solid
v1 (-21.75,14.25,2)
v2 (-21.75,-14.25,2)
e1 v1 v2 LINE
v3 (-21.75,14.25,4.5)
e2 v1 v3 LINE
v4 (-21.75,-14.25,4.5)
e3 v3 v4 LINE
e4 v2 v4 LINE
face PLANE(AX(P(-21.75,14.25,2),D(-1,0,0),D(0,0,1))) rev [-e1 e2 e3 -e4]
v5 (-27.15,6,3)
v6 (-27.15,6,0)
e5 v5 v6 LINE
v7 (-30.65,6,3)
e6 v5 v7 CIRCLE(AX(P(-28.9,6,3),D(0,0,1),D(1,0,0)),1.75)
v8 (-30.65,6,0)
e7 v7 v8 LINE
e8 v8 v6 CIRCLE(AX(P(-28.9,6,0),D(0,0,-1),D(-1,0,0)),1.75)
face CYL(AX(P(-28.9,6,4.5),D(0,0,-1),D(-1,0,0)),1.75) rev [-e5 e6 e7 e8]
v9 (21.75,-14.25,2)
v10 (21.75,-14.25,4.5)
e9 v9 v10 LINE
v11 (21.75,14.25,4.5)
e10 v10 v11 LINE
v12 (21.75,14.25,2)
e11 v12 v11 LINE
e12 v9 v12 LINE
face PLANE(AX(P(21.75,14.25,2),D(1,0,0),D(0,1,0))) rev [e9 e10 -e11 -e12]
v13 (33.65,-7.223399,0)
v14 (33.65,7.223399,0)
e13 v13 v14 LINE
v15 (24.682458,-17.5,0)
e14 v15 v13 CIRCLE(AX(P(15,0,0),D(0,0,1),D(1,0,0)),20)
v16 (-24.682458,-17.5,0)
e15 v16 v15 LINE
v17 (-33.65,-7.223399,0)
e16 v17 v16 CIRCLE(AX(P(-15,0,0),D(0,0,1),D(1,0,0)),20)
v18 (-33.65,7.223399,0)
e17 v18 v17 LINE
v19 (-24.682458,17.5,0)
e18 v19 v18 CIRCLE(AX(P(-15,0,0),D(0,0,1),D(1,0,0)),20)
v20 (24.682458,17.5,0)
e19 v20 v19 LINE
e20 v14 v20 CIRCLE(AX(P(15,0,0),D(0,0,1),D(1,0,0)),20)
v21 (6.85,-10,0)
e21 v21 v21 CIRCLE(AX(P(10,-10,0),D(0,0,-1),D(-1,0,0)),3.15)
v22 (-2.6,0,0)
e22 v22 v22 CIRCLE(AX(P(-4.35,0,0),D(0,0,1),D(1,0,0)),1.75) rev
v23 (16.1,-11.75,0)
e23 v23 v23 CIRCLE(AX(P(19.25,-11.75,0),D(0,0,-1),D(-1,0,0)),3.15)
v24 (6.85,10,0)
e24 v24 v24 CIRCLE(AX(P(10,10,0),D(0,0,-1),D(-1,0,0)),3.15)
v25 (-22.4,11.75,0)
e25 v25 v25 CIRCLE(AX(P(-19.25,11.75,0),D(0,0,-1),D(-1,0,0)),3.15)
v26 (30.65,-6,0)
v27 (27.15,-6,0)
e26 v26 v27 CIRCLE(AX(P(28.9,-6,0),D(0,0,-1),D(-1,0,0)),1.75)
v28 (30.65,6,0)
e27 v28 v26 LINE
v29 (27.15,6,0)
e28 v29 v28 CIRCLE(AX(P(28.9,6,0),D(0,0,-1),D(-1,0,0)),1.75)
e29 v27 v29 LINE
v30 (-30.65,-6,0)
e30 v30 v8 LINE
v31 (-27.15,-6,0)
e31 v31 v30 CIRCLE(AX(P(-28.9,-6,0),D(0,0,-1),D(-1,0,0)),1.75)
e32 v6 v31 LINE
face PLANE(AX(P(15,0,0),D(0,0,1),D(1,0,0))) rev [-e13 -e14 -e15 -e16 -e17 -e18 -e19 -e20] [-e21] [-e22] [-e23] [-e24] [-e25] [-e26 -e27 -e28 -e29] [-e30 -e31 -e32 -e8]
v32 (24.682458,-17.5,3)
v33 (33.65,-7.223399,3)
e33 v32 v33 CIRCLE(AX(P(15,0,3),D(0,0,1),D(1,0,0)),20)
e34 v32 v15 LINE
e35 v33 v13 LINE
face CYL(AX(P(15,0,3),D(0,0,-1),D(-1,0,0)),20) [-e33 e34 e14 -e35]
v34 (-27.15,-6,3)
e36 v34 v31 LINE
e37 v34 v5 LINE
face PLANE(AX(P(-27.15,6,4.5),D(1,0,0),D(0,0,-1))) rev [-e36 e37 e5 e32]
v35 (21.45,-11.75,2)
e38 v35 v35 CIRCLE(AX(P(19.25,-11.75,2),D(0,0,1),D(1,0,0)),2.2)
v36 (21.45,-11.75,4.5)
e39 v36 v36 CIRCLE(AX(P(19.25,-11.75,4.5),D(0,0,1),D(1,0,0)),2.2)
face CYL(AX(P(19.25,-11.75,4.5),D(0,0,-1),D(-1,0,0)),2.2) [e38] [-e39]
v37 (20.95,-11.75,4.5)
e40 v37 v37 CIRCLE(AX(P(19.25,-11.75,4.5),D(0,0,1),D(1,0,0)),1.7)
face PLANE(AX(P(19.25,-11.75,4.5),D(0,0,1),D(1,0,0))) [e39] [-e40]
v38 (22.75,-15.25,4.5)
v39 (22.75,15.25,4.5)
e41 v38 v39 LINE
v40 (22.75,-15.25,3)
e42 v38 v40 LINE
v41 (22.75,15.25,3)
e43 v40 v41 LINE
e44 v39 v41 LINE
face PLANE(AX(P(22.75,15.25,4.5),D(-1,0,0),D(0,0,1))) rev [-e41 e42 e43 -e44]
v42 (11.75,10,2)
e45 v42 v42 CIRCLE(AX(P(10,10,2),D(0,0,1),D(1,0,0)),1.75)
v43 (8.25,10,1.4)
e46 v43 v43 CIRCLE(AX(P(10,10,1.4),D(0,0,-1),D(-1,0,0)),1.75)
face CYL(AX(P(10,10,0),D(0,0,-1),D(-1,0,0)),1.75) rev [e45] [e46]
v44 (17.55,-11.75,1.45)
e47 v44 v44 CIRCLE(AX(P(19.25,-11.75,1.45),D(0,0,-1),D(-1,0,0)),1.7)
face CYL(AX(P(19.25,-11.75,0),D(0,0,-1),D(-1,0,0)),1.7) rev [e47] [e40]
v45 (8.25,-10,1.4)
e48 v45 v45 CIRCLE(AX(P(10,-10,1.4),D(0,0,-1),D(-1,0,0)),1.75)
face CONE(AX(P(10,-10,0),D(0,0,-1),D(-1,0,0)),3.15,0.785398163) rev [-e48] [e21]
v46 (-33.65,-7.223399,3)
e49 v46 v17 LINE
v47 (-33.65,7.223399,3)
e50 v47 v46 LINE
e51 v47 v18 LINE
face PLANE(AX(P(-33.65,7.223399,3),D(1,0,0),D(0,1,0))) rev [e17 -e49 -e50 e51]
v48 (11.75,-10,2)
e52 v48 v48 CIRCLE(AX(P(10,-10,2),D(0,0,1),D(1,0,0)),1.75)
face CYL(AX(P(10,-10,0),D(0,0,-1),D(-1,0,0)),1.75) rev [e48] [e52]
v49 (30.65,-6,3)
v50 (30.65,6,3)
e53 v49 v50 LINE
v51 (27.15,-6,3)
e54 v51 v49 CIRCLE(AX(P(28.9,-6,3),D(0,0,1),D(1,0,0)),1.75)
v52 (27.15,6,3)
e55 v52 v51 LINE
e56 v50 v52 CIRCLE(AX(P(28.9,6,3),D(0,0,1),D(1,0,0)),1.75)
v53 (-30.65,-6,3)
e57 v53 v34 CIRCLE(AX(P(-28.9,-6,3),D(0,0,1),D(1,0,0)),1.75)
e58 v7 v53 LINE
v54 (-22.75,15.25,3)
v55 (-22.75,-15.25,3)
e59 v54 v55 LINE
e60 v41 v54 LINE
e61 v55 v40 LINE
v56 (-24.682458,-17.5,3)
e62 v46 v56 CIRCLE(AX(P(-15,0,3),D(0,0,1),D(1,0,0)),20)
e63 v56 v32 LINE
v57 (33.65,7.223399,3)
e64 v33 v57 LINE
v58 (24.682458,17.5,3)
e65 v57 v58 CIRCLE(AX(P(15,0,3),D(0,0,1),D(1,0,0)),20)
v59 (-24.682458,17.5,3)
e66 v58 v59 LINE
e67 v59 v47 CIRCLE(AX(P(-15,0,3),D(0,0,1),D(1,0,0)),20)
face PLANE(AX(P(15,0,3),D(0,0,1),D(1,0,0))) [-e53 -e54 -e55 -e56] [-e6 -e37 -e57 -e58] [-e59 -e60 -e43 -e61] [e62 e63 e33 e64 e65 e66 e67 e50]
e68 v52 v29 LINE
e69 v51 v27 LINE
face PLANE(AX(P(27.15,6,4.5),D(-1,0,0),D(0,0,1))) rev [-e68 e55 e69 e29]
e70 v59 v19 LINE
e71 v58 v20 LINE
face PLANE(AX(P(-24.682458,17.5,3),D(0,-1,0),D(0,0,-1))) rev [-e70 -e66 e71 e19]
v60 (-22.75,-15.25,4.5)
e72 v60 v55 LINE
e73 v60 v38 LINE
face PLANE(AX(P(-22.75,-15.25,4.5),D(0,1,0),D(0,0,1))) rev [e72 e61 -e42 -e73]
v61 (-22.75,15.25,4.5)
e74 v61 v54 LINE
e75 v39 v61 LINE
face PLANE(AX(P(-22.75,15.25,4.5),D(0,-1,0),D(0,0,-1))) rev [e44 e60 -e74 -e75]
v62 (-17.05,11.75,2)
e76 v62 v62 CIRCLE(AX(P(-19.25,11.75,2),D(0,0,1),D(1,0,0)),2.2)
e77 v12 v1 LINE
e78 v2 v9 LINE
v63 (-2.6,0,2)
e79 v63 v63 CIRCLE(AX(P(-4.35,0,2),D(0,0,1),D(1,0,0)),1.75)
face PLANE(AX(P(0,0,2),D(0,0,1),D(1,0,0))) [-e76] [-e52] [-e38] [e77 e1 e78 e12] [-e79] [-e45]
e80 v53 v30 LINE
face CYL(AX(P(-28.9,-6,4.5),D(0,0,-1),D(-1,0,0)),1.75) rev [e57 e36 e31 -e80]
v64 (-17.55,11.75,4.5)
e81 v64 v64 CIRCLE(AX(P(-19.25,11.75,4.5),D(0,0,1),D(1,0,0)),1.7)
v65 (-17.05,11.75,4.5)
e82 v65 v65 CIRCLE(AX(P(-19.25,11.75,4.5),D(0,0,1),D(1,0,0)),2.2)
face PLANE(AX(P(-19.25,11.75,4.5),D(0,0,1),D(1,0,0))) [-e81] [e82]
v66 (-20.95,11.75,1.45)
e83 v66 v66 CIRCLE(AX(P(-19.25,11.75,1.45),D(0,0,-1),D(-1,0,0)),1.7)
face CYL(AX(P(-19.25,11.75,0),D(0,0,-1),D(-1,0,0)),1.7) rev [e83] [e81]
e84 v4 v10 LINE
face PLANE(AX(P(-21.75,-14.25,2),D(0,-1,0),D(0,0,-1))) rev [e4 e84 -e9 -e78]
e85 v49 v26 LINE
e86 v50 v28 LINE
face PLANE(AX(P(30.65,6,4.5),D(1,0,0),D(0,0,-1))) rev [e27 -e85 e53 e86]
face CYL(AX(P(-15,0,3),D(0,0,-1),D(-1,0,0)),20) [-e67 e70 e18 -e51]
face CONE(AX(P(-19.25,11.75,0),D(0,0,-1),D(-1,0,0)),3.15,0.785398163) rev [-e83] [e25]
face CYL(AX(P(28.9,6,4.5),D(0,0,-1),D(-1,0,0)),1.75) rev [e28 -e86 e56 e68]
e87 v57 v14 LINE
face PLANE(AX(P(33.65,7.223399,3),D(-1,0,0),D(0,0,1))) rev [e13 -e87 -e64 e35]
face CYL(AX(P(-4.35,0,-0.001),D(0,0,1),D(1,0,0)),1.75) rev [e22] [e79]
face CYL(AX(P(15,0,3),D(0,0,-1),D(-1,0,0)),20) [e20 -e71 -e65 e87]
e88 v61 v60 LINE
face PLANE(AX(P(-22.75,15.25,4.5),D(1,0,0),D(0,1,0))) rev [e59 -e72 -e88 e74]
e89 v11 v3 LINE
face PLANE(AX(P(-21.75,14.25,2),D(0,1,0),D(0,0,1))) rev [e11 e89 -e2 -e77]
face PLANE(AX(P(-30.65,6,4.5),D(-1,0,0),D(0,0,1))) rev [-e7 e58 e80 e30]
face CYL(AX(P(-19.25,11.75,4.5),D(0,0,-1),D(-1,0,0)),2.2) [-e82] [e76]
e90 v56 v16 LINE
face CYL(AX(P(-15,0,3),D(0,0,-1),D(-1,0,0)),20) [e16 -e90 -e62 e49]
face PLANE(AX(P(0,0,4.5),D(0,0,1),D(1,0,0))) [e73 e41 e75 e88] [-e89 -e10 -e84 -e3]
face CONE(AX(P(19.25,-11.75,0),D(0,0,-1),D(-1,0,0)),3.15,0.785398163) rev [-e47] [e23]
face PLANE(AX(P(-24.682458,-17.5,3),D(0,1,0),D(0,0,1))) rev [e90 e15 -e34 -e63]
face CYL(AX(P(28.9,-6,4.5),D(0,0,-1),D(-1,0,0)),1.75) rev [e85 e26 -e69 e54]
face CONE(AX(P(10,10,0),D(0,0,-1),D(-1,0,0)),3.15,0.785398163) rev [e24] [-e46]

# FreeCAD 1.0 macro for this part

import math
import FreeCAD as App
import Part
import Sketcher
from FreeCAD import Vector
Q = App.Units.Quantity

doc = App.newDocument("Part")
body = doc.addObject("PartDesign::Body", "Body")

# Sketch on XY plane
sketch1 = body.newObject("Sketcher::SketchObject", "Sketch")
sketch1.AttachmentSupport = (doc.getObject("XY_Plane"), [""])
sketch1.MapMode = "FlatFace"
sketch1.addGeometry([
    Part.LineSegment(Vector(25, 18, 0), Vector(-25, 18, 0)),  # 0
    Part.ArcOfCircle(Part.Circle(Vector(-15, 0, 0), Vector(0, 0, 1), 20), math.radians(119), math.radians(159)),  # 1
    Part.LineSegment(Vector(-34, 7, 0), Vector(-34, -7, 0)),  # 2
    Part.ArcOfCircle(Part.Circle(Vector(-15, 0, 0), Vector(0, 0, 1), 20), math.radians(-159), math.radians(-119)),  # 3
    Part.LineSegment(Vector(-25, -18, 0), Vector(25, -18, 0)),  # 4
    Part.ArcOfCircle(Part.Circle(Vector(15, 0, 0), Vector(0, 0, 1), 20), math.radians(-61), math.radians(-21)),  # 5
    Part.LineSegment(Vector(34, -7, 0), Vector(34, 7, 0)),  # 6
    Part.ArcOfCircle(Part.Circle(Vector(15, 0, 0), Vector(0, 0, 1), 20), math.radians(21), math.radians(61)),  # 7
], False)
sketch1.addConstraint([
    Sketcher.Constraint("Coincident", 0, 2, 1, 1),
    Sketcher.Constraint("Coincident", 1, 2, 2, 1),
    Sketcher.Constraint("Coincident", 2, 2, 3, 1),
    Sketcher.Constraint("Coincident", 3, 2, 4, 1),
    Sketcher.Constraint("Coincident", 4, 2, 5, 1),
    Sketcher.Constraint("Coincident", 5, 2, 6, 1),
    Sketcher.Constraint("Coincident", 6, 2, 7, 1),
    Sketcher.Constraint("Coincident", 7, 2, 0, 1),
    Sketcher.Constraint("Horizontal", 0),
    Sketcher.Constraint("Vertical", 2),
    Sketcher.Constraint("Horizontal", 4),
    Sketcher.Constraint("Vertical", 6),
    Sketcher.Constraint("Coincident", 3, 3, 1, 3),
    Sketcher.Constraint("Coincident", 7, 3, 5, 3),
    Sketcher.Constraint("Equal", 1, 3),
    Sketcher.Constraint("Equal", 3, 5),
    Sketcher.Constraint("Equal", 5, 7),
    Sketcher.Constraint("Symmetric", 1, 3, 5, 3, -1, 1),
    Sketcher.Constraint("Symmetric", 2, 2, 5, 2, -2),
    Sketcher.Constraint("Vertical", 0, 2, 3, 2),
    Sketcher.Constraint("Radius", 1, Q("20 mm")),
    Sketcher.Constraint("DistanceX", 1, 3, -1, 1, Q("15 mm")),
    Sketcher.Constraint("DistanceY", 3, 2, 0, 2, Q("35 mm")),
    Sketcher.Constraint("DistanceX", 1, 2, -1, 1, Q("33.65 mm")),
])
pad1 = body.newObject("PartDesign::Pad", "Pad")
pad1.Profile = sketch1
pad1.Length = 3

# Sketch on XY plane
sketch2 = body.newObject("Sketcher::SketchObject", "Sketch001")
sketch2.AttachmentSupport = (doc.getObject("XY_Plane"), [""])
sketch2.MapMode = "FlatFace"
sketch2.AttachmentOffset = App.Placement(Vector(0, 0, 3), App.Rotation())
sketch2.addGeometry([
    Part.LineSegment(Vector(-23, 15, 0), Vector(-23, -15, 0)),
    Part.LineSegment(Vector(-23, -15, 0), Vector(23, -15, 0)),
    Part.LineSegment(Vector(23, -15, 0), Vector(23, 15, 0)),
    Part.LineSegment(Vector(23, 15, 0), Vector(-23, 15, 0)),
], False)
sketch2.addConstraint([
    Sketcher.Constraint("Coincident", 0, 2, 1, 1),
    Sketcher.Constraint("Coincident", 1, 2, 2, 1),
    Sketcher.Constraint("Coincident", 2, 2, 3, 1),
    Sketcher.Constraint("Coincident", 3, 2, 0, 1),
    Sketcher.Constraint("Vertical", 0),
    Sketcher.Constraint("Horizontal", 1),
    Sketcher.Constraint("Vertical", 2),
    Sketcher.Constraint("Horizontal", 3),
    Sketcher.Constraint("Symmetric", 0, 2, 2, 2, -1, 1),
    Sketcher.Constraint("DistanceX", 1, 1, 1, 2, Q("45.5 mm")),
    Sketcher.Constraint("DistanceY", 0, 2, 0, 1, Q("30.5 mm")),
])
pad2 = body.newObject("PartDesign::Pad", "Pad001")
pad2.Profile = sketch2
pad2.Length = 1.5

# Sketch on XY plane
sketch3 = body.newObject("Sketcher::SketchObject", "Sketch002")
sketch3.AttachmentSupport = (doc.getObject("XY_Plane"), [""])
sketch3.MapMode = "FlatFace"
sketch3.AttachmentOffset = App.Placement(Vector(0, 0, 4.5), App.Rotation())
sketch3.addGeometry([
    Part.LineSegment(Vector(-22, 14, 0), Vector(-22, -14, 0)),
    Part.LineSegment(Vector(-22, -14, 0), Vector(22, -14, 0)),
    Part.LineSegment(Vector(22, -14, 0), Vector(22, 14, 0)),
    Part.LineSegment(Vector(22, 14, 0), Vector(-22, 14, 0)),
], False)
sketch3.addConstraint([
    Sketcher.Constraint("Coincident", 0, 2, 1, 1),
    Sketcher.Constraint("Coincident", 1, 2, 2, 1),
    Sketcher.Constraint("Coincident", 2, 2, 3, 1),
    Sketcher.Constraint("Coincident", 3, 2, 0, 1),
    Sketcher.Constraint("Vertical", 0),
    Sketcher.Constraint("Horizontal", 1),
    Sketcher.Constraint("Vertical", 2),
    Sketcher.Constraint("Horizontal", 3),
    Sketcher.Constraint("Symmetric", 0, 2, 2, 2, -1, 1),
    Sketcher.Constraint("DistanceX", 1, 1, 1, 2, Q("43.5 mm")),
    Sketcher.Constraint("DistanceY", 0, 2, 0, 1, Q("28.5 mm")),
])
pocket1 = body.newObject("PartDesign::Pocket", "Pocket")
pocket1.Profile = sketch3
pocket1.Length = 2.5

# Sketch on XY plane
sketch4 = body.newObject("Sketcher::SketchObject", "Sketch003")
sketch4.AttachmentSupport = (doc.getObject("XY_Plane"), [""])
sketch4.MapMode = "FlatFace"
sketch4.addGeometry([
    Part.Circle(Vector(19.2, -11.8, 0), Vector(0, 0, 1), 1.7),
    Part.Circle(Vector(-19.2, 11.8, 0), Vector(0, 0, 1), 1.7),
], False)
sketch4.addConstraint([
    Sketcher.Constraint("Equal", 0, 1),
    Sketcher.Constraint("Symmetric", 0, 3, 1, 3, -1, 1),
    Sketcher.Constraint("Diameter", 0, Q("3.4 mm")),
    Sketcher.Constraint("DistanceX", 1, 3, 0, 3, Q("38.5 mm")),
    Sketcher.Constraint("DistanceY", 0, 3, 1, 3, Q("23.5 mm")),
])
doc.recompute()
hole = body.newObject("PartDesign::Hole", "Hole")
hole.Profile = sketch4
hole.ThreadType = "None"
hole.Diameter = 3.4
hole.DepthType = "ThroughAll"
hole.HoleCutType = "Countersink"
hole.HoleCutDiameter = 6.3
hole.HoleCutCountersinkAngle = 90
hole.Reversed = True

# Sketch on XY plane
sketch5 = body.newObject("Sketcher::SketchObject", "Sketch004")
sketch5.AttachmentSupport = (doc.getObject("XY_Plane"), [""])
sketch5.MapMode = "FlatFace"
sketch5.AttachmentOffset = App.Placement(Vector(0, 0, 4.5), App.Rotation())
sketch5.addGeometry([
    Part.Circle(Vector(-19.2, 11.8, 0), Vector(0, 0, 1), 2.2),
    Part.Circle(Vector(-19.2, 11.8, 0), Vector(0, 0, 1), 1.7),
    Part.Circle(Vector(19.2, -11.8, 0), Vector(0, 0, 1), 2.2),
    Part.Circle(Vector(19.2, -11.8, 0), Vector(0, 0, 1), 1.7),
], False)
sketch5.addConstraint([
    Sketcher.Constraint("Coincident", 1, 3, 0, 3),
    Sketcher.Constraint("Coincident", 3, 3, 2, 3),
    Sketcher.Constraint("Equal", 0, 2),
    Sketcher.Constraint("Equal", 1, 3),
    Sketcher.Constraint("Symmetric", 0, 3, 2, 3, -1, 1),
    Sketcher.Constraint("Diameter", 0, Q("4.4 mm")),
    Sketcher.Constraint("Diameter", 1, Q("3.4 mm")),
    Sketcher.Constraint("DistanceX", 0, 3, 2, 3, Q("38.5 mm")),
    Sketcher.Constraint("DistanceY", 2, 3, 0, 3, Q("23.5 mm")),
])
pad3 = body.newObject("PartDesign::Pad", "Pad002")
pad3.Profile = sketch5
pad3.Length = 2.5
pad3.Reversed = True

# Sketch on XY plane
sketch6 = body.newObject("Sketcher::SketchObject", "Sketch005")
sketch6.AttachmentSupport = (doc.getObject("XY_Plane"), [""])
sketch6.MapMode = "FlatFace"
sketch6.addGeometry([
    Part.LineSegment(Vector(27.1, -6, 0), Vector(27.1, 6, 0)),  # 0
    Part.ArcOfCircle(Part.Circle(Vector(28.9, 6, 0), Vector(0, 0, 1), 1.8), math.radians(0), math.radians(180)),  # 1
    Part.LineSegment(Vector(30.6, 6, 0), Vector(30.6, -6, 0)),  # 2
    Part.ArcOfCircle(Part.Circle(Vector(28.9, -6, 0), Vector(0, 0, 1), 1.8), math.radians(180), math.radians(360)),  # 3
    Part.LineSegment(Vector(-27.1, 6, 0), Vector(-27.1, -6, 0)),  # 4
    Part.ArcOfCircle(Part.Circle(Vector(-28.9, -6, 0), Vector(0, 0, 1), 1.8), math.radians(180), math.radians(360)),  # 5
    Part.LineSegment(Vector(-30.6, -6, 0), Vector(-30.6, 6, 0)),  # 6
    Part.ArcOfCircle(Part.Circle(Vector(-28.9, 6, 0), Vector(0, 0, 1), 1.8), math.radians(0), math.radians(180)),  # 7
], False)
sketch6.addConstraint([
    Sketcher.Constraint("Tangent", 0, 2, 1, 2),
    Sketcher.Constraint("Tangent", 1, 1, 2, 1),
    Sketcher.Constraint("Tangent", 2, 2, 3, 2),
    Sketcher.Constraint("Tangent", 3, 1, 0, 1),
    Sketcher.Constraint("Tangent", 4, 2, 5, 2),
    Sketcher.Constraint("Tangent", 5, 1, 6, 1),
    Sketcher.Constraint("Tangent", 6, 2, 7, 2),
    Sketcher.Constraint("Tangent", 7, 1, 4, 1),
    Sketcher.Constraint("Vertical", 0),
    Sketcher.Constraint("Vertical", 2),
    Sketcher.Constraint("Vertical", 4),
    Sketcher.Constraint("Vertical", 6),
    Sketcher.Constraint("Equal", 3, 5),
    Sketcher.Constraint("Symmetric", 1, 3, 5, 3, -1, 1),
    Sketcher.Constraint("Horizontal", 3, 3, 5, 3),
    Sketcher.Constraint("Horizontal", 1, 3, 7, 3),
    Sketcher.Constraint("DistanceY", 0, 1, 0, 2, Q("12 mm")),
    Sketcher.Constraint("Radius", 1, Q("1.75 mm")),
    Sketcher.Constraint("DistanceX", -1, 1, 1, 3, Q("28.9 mm")),
])
pocket2 = body.newObject("PartDesign::Pocket", "Pocket001")
pocket2.Profile = sketch6
pocket2.Type = "ThroughAll"
pocket2.Reversed = True

# Sketch on XY plane
sketch7 = body.newObject("Sketcher::SketchObject", "Sketch006")
sketch7.AttachmentSupport = (doc.getObject("XY_Plane"), [""])
sketch7.MapMode = "FlatFace"
sketch7.addGeometry([
    Part.Circle(Vector(10, -10, 0), Vector(0, 0, 1), 1.8),
    Part.Circle(Vector(10, 10, 0), Vector(0, 0, 1), 1.8),
], False)
sketch7.addConstraint([
    Sketcher.Constraint("Equal", 0, 1),
    Sketcher.Constraint("Symmetric", 0, 3, 1, 3, -1),
    Sketcher.Constraint("Diameter", 0, Q("3.5 mm")),
    Sketcher.Constraint("DistanceX", -1, 1, 0, 3, Q("10 mm")),
    Sketcher.Constraint("DistanceY", 0, 3, -1, 1, Q("10 mm")),
])
doc.recompute()
hole2 = body.newObject("PartDesign::Hole", "Hole001")
hole2.Profile = sketch7
hole2.ThreadType = "None"
hole2.Diameter = 3.5
hole2.DepthType = "ThroughAll"
hole2.HoleCutType = "Countersink"
hole2.HoleCutDiameter = 6.3
hole2.HoleCutCountersinkAngle = 90
hole2.Reversed = True

# Sketch on XY plane
sketch8 = body.newObject("Sketcher::SketchObject", "Sketch007")
sketch8.AttachmentSupport = (doc.getObject("XY_Plane"), [""])
sketch8.MapMode = "FlatFace"
sketch8.AttachmentOffset = App.Placement(Vector(0, 0, 2), App.Rotation())
sketch8.addGeometry(Part.Circle(Vector(-4.3, 0, 0), Vector(0, 0, 1), 1.8), False)
sketch8.addConstraint([
    Sketcher.Constraint("PointOnObject", 0, 3, -1),
    Sketcher.Constraint("Diameter", 0, Q("3.5 mm")),
    Sketcher.Constraint("DistanceX", 0, 3, -1, 1, Q("4.35 mm")),
])
pocket3 = body.newObject("PartDesign::Pocket", "Pocket002")
pocket3.Profile = sketch8
pocket3.Type = "UpToFirst"

doc.recompute()
